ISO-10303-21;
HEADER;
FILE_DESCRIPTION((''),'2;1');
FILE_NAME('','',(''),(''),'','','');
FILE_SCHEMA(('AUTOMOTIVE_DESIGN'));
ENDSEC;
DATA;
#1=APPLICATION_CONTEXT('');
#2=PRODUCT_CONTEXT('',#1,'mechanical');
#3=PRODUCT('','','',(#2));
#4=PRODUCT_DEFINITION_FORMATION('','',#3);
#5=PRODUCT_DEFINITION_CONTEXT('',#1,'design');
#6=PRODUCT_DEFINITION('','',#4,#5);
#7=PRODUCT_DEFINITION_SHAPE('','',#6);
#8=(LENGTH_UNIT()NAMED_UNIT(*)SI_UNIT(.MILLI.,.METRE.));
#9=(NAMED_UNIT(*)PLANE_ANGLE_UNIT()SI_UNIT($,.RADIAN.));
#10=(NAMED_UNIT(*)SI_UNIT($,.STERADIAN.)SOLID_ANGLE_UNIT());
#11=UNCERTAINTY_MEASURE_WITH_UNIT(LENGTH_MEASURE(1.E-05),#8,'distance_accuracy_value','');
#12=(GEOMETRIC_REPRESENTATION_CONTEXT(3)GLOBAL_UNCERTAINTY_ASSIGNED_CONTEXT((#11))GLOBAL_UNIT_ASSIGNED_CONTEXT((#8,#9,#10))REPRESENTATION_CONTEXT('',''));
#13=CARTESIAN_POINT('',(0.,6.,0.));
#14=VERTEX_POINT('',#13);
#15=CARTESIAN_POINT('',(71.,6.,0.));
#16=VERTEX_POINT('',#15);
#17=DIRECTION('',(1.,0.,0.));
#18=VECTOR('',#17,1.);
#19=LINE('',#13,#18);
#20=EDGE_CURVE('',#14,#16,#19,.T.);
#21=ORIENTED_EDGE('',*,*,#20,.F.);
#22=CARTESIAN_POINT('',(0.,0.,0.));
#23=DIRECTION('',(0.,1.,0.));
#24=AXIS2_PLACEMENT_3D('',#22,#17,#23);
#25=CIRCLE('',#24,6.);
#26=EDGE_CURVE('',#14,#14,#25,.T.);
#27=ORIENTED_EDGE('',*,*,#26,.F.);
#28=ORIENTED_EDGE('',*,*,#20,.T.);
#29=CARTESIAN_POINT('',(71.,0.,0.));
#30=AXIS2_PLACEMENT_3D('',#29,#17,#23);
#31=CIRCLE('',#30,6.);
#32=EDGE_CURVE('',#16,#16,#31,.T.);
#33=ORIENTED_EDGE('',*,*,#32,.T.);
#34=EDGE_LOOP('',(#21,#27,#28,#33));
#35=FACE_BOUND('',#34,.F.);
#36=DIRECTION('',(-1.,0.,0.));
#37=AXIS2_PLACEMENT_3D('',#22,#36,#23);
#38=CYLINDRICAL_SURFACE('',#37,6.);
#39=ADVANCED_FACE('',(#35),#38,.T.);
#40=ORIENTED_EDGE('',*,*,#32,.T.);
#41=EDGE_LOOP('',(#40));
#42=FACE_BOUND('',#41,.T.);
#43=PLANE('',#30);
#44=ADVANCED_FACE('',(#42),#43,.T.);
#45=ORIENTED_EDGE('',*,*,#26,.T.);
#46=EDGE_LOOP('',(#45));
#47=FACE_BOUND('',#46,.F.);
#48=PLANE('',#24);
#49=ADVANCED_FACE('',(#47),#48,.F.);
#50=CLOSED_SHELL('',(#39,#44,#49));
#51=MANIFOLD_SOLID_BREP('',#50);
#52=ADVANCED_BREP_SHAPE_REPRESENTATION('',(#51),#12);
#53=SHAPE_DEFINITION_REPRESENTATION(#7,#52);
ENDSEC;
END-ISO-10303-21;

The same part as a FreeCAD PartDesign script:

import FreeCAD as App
import Part
import Sketcher

V = App.Vector
Q = App.Units.Quantity

doc = App.newDocument("Part")
body = doc.addObject("PartDesign::Body", "Body")

# Sketch on YZ plane
sketch1 = body.newObject("Sketcher::SketchObject", "Sketch")
sketch1.AttachmentSupport = (doc.getObject("YZ_Plane"), [""])
sketch1.MapMode = "FlatFace"
sketch1.addGeometry(Part.Circle(V(0, 0, 0), V(0, 0, 1), 6), False)
sketch1.addConstraint([
    Sketcher.Constraint("Coincident", 0, 3, -1, 1),
    Sketcher.Constraint("Diameter", 0, Q("12 mm")),
])
pad1 = body.newObject("PartDesign::Pad", "Pad")
pad1.Profile = sketch1
pad1.Length = 71

doc.recompute()
